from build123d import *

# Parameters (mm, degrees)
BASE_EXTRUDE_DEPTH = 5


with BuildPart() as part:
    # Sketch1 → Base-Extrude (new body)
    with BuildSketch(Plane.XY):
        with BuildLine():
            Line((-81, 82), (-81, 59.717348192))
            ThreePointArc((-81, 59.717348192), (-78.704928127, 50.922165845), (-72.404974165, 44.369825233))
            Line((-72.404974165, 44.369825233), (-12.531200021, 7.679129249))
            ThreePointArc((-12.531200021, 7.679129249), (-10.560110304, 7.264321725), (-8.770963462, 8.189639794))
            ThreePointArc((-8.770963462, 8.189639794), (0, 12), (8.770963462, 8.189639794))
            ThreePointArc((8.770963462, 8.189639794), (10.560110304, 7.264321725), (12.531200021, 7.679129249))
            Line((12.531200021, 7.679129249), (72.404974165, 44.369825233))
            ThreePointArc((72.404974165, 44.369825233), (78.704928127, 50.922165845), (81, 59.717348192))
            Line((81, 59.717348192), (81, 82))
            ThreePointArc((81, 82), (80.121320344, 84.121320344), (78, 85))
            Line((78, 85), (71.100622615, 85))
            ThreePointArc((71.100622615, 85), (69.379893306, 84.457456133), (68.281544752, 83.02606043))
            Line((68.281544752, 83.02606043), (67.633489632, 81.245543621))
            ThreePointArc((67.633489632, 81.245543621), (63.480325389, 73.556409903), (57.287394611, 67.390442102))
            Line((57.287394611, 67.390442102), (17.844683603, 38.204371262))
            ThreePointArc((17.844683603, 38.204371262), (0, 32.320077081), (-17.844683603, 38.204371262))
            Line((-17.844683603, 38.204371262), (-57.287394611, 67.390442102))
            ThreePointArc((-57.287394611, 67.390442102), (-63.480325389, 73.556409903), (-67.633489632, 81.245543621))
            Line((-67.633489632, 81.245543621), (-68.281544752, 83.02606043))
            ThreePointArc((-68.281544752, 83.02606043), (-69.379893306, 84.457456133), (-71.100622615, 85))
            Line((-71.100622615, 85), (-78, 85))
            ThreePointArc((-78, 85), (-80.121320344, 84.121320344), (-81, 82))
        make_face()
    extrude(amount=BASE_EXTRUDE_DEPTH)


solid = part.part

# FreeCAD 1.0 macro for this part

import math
import FreeCAD as App
import Part
import Sketcher
Q = App.Units.Quantity

doc = App.newDocument("Part")
body = doc.addObject("PartDesign::Body", "Body")

# Sketch on XY plane
sketch1 = body.newObject("Sketcher::SketchObject", "Sketch")
sketch1.AttachmentSupport = (doc.getObject("XY_Plane"), [""])
sketch1.MapMode = "FlatFace"
sketch1.addGeometry([
    Part.LineSegment(App.Vector(-81, 82, 0), App.Vector(-81, 59.717348, 0)),  # 0
    Part.ArcOfCircle(Part.Circle(App.Vector(-63, 59.717348, 0), App.Vector(0, 0, 1), 18), math.radians(-180), math.radians(-121.5)),  # 1
    Part.LineSegment(App.Vector(-72.404974, 44.369825, 0), App.Vector(-12.5312, 7.679129, 0)),  # 2
    Part.ArcOfCircle(Part.Circle(App.Vector(-10.963704, 10.23705, 0), App.Vector(0, 0, 1), 3), math.radians(-121.5), math.radians(-43.036959)),  # 3
    Part.ArcOfCircle(Part.Circle(App.Vector(0, 0, 0), App.Vector(0, 0, 1), 12), math.radians(43.036959), math.radians(136.963041)),  # 4
    Part.ArcOfCircle(Part.Circle(App.Vector(10.963704, 10.23705, 0), App.Vector(0, 0, 1), 3), math.radians(-136.963041), math.radians(-58.5)),  # 5
    Part.LineSegment(App.Vector(12.5312, 7.679129, 0), App.Vector(72.404974, 44.369825, 0)),  # 6
    Part.ArcOfCircle(Part.Circle(App.Vector(63, 59.717348, 0), App.Vector(0, 0, 1), 18), math.radians(-58.5), math.radians(0)),  # 7
    Part.LineSegment(App.Vector(81, 59.717348, 0), App.Vector(81, 82, 0)),  # 8
    Part.ArcOfCircle(Part.Circle(App.Vector(78, 82, 0), App.Vector(0, 0, 1), 3), math.radians(0), math.radians(90)),  # 9
    Part.LineSegment(App.Vector(78, 85, 0), App.Vector(71.100623, 85, 0)),  # 10
    Part.ArcOfCircle(Part.Circle(App.Vector(71.100623, 82, 0), App.Vector(0, 0, 1), 3), math.radians(90), math.radians(160)),  # 11
    Part.LineSegment(App.Vector(68.281545, 83.02606, 0), App.Vector(67.63349, 81.245544, 0)),  # 12
    Part.ArcOfCircle(Part.Circle(App.Vector(39.442711, 91.506148, 0), App.Vector(0, 0, 1), 30), math.radians(-53.5), math.radians(-20)),  # 13
    Part.LineSegment(App.Vector(57.287395, 67.390442, 0), App.Vector(17.844684, 38.204371, 0)),  # 14
    Part.ArcOfCircle(Part.Circle(App.Vector(0, 62.320077, 0), App.Vector(0, 0, 1), 30), math.radians(-126.5), math.radians(-53.5)),  # 15
    Part.LineSegment(App.Vector(-17.844684, 38.204371, 0), App.Vector(-57.287395, 67.390442, 0)),  # 16
    Part.ArcOfCircle(Part.Circle(App.Vector(-39.442711, 91.506148, 0), App.Vector(0, 0, 1), 30), math.radians(-160), math.radians(-126.5)),  # 17
    Part.LineSegment(App.Vector(-67.63349, 81.245544, 0), App.Vector(-68.281545, 83.02606, 0)),  # 18
    Part.ArcOfCircle(Part.Circle(App.Vector(-71.100623, 82, 0), App.Vector(0, 0, 1), 3), math.radians(20), math.radians(90)),  # 19
    Part.LineSegment(App.Vector(-71.100623, 85, 0), App.Vector(-78, 85, 0)),  # 20
    Part.ArcOfCircle(Part.Circle(App.Vector(-78, 82, 0), App.Vector(0, 0, 1), 3), math.radians(90), math.radians(180)),  # 21
], False)
sketch1.addConstraint([
    Sketcher.Constraint("Tangent", 0, 2, 1, 1),
    Sketcher.Constraint("Tangent", 1, 2, 2, 1),
    Sketcher.Constraint("Tangent", 2, 2, 3, 1),
    Sketcher.Constraint("Tangent", 3, 2, 4, 2),
    Sketcher.Constraint("Tangent", 4, 1, 5, 1),
    Sketcher.Constraint("Tangent", 5, 2, 6, 1),
    Sketcher.Constraint("Tangent", 6, 2, 7, 1),
    Sketcher.Constraint("Tangent", 7, 2, 8, 1),
    Sketcher.Constraint("Tangent", 8, 2, 9, 1),
    Sketcher.Constraint("Tangent", 9, 2, 10, 1),
    Sketcher.Constraint("Tangent", 10, 2, 11, 1),
    Sketcher.Constraint("Tangent", 11, 2, 12, 1),
    Sketcher.Constraint("Tangent", 12, 2, 13, 2),
    Sketcher.Constraint("Tangent", 13, 1, 14, 1),
    Sketcher.Constraint("Tangent", 14, 2, 15, 2),
    Sketcher.Constraint("Tangent", 15, 1, 16, 1),
    Sketcher.Constraint("Tangent", 16, 2, 17, 2),
    Sketcher.Constraint("Tangent", 17, 1, 18, 1),
    Sketcher.Constraint("Tangent", 18, 2, 19, 1),
    Sketcher.Constraint("Tangent", 19, 2, 20, 1),
    Sketcher.Constraint("Tangent", 20, 2, 21, 1),
    Sketcher.Constraint("Tangent", 21, 2, 0, 1),
    Sketcher.Constraint("Vertical", 0),
    Sketcher.Constraint("Vertical", 8),
    Sketcher.Constraint("Horizontal", 10),
    Sketcher.Constraint("Horizontal", 20),
    Sketcher.Constraint("Coincident", 4, 3, -1, 1),
    Sketcher.Constraint("Equal", 3, 5),
    Sketcher.Constraint("Equal", 1, 7),
    Sketcher.Constraint("Equal", 5, 9),
    Sketcher.Constraint("Equal", 9, 11),
    Sketcher.Constraint("Equal", 13, 15),
    Sketcher.Constraint("Equal", 15, 17),
    Sketcher.Constraint("Equal", 11, 19),
    Sketcher.Constraint("Equal", 19, 21),
    Sketcher.Constraint("Symmetric", 1, 3, 7, 3, -2),
    Sketcher.Constraint("Symmetric", 13, 3, 17, 3, -2),
    Sketcher.Constraint("Symmetric", 11, 3, 19, 3, -2),
    Sketcher.Constraint("PointOnObject", 15, 3, -2),
    Sketcher.Constraint("Horizontal", 3, 3, 5, 3),
    Sketcher.Constraint("Radius", 1, 18.0),
    Sketcher.Constraint("Radius", 3, 3.0),
    Sketcher.Constraint("Radius", 4, 12.0),
    Sketcher.Constraint("Radius", 13, 30.0),
    Sketcher.Constraint("Angle", 12, Q("-110 deg")),
    Sketcher.Constraint("DistanceX", 1, 3, -1, 1, 63.0),
    Sketcher.Constraint("DistanceY", -1, 1, 9, 3, 82.0),
    Sketcher.Constraint("Angle", 2, Q("-31.5 deg")),
    Sketcher.Constraint("Angle", 14, Q("-143.5 deg")),
    Sketcher.Constraint("DistanceY", 0, 2, 0, 1, 22.282652),
    Sketcher.Constraint("DistanceY", 7, 3, 13, 3, 31.7888),
    Sketcher.Constraint("DistanceX", 10, 2, 10, 1, 6.899377),
])
pad1 = body.newObject("PartDesign::Pad", "Pad")
pad1.Profile = sketch1
pad1.Length = 5

doc.recompute()
